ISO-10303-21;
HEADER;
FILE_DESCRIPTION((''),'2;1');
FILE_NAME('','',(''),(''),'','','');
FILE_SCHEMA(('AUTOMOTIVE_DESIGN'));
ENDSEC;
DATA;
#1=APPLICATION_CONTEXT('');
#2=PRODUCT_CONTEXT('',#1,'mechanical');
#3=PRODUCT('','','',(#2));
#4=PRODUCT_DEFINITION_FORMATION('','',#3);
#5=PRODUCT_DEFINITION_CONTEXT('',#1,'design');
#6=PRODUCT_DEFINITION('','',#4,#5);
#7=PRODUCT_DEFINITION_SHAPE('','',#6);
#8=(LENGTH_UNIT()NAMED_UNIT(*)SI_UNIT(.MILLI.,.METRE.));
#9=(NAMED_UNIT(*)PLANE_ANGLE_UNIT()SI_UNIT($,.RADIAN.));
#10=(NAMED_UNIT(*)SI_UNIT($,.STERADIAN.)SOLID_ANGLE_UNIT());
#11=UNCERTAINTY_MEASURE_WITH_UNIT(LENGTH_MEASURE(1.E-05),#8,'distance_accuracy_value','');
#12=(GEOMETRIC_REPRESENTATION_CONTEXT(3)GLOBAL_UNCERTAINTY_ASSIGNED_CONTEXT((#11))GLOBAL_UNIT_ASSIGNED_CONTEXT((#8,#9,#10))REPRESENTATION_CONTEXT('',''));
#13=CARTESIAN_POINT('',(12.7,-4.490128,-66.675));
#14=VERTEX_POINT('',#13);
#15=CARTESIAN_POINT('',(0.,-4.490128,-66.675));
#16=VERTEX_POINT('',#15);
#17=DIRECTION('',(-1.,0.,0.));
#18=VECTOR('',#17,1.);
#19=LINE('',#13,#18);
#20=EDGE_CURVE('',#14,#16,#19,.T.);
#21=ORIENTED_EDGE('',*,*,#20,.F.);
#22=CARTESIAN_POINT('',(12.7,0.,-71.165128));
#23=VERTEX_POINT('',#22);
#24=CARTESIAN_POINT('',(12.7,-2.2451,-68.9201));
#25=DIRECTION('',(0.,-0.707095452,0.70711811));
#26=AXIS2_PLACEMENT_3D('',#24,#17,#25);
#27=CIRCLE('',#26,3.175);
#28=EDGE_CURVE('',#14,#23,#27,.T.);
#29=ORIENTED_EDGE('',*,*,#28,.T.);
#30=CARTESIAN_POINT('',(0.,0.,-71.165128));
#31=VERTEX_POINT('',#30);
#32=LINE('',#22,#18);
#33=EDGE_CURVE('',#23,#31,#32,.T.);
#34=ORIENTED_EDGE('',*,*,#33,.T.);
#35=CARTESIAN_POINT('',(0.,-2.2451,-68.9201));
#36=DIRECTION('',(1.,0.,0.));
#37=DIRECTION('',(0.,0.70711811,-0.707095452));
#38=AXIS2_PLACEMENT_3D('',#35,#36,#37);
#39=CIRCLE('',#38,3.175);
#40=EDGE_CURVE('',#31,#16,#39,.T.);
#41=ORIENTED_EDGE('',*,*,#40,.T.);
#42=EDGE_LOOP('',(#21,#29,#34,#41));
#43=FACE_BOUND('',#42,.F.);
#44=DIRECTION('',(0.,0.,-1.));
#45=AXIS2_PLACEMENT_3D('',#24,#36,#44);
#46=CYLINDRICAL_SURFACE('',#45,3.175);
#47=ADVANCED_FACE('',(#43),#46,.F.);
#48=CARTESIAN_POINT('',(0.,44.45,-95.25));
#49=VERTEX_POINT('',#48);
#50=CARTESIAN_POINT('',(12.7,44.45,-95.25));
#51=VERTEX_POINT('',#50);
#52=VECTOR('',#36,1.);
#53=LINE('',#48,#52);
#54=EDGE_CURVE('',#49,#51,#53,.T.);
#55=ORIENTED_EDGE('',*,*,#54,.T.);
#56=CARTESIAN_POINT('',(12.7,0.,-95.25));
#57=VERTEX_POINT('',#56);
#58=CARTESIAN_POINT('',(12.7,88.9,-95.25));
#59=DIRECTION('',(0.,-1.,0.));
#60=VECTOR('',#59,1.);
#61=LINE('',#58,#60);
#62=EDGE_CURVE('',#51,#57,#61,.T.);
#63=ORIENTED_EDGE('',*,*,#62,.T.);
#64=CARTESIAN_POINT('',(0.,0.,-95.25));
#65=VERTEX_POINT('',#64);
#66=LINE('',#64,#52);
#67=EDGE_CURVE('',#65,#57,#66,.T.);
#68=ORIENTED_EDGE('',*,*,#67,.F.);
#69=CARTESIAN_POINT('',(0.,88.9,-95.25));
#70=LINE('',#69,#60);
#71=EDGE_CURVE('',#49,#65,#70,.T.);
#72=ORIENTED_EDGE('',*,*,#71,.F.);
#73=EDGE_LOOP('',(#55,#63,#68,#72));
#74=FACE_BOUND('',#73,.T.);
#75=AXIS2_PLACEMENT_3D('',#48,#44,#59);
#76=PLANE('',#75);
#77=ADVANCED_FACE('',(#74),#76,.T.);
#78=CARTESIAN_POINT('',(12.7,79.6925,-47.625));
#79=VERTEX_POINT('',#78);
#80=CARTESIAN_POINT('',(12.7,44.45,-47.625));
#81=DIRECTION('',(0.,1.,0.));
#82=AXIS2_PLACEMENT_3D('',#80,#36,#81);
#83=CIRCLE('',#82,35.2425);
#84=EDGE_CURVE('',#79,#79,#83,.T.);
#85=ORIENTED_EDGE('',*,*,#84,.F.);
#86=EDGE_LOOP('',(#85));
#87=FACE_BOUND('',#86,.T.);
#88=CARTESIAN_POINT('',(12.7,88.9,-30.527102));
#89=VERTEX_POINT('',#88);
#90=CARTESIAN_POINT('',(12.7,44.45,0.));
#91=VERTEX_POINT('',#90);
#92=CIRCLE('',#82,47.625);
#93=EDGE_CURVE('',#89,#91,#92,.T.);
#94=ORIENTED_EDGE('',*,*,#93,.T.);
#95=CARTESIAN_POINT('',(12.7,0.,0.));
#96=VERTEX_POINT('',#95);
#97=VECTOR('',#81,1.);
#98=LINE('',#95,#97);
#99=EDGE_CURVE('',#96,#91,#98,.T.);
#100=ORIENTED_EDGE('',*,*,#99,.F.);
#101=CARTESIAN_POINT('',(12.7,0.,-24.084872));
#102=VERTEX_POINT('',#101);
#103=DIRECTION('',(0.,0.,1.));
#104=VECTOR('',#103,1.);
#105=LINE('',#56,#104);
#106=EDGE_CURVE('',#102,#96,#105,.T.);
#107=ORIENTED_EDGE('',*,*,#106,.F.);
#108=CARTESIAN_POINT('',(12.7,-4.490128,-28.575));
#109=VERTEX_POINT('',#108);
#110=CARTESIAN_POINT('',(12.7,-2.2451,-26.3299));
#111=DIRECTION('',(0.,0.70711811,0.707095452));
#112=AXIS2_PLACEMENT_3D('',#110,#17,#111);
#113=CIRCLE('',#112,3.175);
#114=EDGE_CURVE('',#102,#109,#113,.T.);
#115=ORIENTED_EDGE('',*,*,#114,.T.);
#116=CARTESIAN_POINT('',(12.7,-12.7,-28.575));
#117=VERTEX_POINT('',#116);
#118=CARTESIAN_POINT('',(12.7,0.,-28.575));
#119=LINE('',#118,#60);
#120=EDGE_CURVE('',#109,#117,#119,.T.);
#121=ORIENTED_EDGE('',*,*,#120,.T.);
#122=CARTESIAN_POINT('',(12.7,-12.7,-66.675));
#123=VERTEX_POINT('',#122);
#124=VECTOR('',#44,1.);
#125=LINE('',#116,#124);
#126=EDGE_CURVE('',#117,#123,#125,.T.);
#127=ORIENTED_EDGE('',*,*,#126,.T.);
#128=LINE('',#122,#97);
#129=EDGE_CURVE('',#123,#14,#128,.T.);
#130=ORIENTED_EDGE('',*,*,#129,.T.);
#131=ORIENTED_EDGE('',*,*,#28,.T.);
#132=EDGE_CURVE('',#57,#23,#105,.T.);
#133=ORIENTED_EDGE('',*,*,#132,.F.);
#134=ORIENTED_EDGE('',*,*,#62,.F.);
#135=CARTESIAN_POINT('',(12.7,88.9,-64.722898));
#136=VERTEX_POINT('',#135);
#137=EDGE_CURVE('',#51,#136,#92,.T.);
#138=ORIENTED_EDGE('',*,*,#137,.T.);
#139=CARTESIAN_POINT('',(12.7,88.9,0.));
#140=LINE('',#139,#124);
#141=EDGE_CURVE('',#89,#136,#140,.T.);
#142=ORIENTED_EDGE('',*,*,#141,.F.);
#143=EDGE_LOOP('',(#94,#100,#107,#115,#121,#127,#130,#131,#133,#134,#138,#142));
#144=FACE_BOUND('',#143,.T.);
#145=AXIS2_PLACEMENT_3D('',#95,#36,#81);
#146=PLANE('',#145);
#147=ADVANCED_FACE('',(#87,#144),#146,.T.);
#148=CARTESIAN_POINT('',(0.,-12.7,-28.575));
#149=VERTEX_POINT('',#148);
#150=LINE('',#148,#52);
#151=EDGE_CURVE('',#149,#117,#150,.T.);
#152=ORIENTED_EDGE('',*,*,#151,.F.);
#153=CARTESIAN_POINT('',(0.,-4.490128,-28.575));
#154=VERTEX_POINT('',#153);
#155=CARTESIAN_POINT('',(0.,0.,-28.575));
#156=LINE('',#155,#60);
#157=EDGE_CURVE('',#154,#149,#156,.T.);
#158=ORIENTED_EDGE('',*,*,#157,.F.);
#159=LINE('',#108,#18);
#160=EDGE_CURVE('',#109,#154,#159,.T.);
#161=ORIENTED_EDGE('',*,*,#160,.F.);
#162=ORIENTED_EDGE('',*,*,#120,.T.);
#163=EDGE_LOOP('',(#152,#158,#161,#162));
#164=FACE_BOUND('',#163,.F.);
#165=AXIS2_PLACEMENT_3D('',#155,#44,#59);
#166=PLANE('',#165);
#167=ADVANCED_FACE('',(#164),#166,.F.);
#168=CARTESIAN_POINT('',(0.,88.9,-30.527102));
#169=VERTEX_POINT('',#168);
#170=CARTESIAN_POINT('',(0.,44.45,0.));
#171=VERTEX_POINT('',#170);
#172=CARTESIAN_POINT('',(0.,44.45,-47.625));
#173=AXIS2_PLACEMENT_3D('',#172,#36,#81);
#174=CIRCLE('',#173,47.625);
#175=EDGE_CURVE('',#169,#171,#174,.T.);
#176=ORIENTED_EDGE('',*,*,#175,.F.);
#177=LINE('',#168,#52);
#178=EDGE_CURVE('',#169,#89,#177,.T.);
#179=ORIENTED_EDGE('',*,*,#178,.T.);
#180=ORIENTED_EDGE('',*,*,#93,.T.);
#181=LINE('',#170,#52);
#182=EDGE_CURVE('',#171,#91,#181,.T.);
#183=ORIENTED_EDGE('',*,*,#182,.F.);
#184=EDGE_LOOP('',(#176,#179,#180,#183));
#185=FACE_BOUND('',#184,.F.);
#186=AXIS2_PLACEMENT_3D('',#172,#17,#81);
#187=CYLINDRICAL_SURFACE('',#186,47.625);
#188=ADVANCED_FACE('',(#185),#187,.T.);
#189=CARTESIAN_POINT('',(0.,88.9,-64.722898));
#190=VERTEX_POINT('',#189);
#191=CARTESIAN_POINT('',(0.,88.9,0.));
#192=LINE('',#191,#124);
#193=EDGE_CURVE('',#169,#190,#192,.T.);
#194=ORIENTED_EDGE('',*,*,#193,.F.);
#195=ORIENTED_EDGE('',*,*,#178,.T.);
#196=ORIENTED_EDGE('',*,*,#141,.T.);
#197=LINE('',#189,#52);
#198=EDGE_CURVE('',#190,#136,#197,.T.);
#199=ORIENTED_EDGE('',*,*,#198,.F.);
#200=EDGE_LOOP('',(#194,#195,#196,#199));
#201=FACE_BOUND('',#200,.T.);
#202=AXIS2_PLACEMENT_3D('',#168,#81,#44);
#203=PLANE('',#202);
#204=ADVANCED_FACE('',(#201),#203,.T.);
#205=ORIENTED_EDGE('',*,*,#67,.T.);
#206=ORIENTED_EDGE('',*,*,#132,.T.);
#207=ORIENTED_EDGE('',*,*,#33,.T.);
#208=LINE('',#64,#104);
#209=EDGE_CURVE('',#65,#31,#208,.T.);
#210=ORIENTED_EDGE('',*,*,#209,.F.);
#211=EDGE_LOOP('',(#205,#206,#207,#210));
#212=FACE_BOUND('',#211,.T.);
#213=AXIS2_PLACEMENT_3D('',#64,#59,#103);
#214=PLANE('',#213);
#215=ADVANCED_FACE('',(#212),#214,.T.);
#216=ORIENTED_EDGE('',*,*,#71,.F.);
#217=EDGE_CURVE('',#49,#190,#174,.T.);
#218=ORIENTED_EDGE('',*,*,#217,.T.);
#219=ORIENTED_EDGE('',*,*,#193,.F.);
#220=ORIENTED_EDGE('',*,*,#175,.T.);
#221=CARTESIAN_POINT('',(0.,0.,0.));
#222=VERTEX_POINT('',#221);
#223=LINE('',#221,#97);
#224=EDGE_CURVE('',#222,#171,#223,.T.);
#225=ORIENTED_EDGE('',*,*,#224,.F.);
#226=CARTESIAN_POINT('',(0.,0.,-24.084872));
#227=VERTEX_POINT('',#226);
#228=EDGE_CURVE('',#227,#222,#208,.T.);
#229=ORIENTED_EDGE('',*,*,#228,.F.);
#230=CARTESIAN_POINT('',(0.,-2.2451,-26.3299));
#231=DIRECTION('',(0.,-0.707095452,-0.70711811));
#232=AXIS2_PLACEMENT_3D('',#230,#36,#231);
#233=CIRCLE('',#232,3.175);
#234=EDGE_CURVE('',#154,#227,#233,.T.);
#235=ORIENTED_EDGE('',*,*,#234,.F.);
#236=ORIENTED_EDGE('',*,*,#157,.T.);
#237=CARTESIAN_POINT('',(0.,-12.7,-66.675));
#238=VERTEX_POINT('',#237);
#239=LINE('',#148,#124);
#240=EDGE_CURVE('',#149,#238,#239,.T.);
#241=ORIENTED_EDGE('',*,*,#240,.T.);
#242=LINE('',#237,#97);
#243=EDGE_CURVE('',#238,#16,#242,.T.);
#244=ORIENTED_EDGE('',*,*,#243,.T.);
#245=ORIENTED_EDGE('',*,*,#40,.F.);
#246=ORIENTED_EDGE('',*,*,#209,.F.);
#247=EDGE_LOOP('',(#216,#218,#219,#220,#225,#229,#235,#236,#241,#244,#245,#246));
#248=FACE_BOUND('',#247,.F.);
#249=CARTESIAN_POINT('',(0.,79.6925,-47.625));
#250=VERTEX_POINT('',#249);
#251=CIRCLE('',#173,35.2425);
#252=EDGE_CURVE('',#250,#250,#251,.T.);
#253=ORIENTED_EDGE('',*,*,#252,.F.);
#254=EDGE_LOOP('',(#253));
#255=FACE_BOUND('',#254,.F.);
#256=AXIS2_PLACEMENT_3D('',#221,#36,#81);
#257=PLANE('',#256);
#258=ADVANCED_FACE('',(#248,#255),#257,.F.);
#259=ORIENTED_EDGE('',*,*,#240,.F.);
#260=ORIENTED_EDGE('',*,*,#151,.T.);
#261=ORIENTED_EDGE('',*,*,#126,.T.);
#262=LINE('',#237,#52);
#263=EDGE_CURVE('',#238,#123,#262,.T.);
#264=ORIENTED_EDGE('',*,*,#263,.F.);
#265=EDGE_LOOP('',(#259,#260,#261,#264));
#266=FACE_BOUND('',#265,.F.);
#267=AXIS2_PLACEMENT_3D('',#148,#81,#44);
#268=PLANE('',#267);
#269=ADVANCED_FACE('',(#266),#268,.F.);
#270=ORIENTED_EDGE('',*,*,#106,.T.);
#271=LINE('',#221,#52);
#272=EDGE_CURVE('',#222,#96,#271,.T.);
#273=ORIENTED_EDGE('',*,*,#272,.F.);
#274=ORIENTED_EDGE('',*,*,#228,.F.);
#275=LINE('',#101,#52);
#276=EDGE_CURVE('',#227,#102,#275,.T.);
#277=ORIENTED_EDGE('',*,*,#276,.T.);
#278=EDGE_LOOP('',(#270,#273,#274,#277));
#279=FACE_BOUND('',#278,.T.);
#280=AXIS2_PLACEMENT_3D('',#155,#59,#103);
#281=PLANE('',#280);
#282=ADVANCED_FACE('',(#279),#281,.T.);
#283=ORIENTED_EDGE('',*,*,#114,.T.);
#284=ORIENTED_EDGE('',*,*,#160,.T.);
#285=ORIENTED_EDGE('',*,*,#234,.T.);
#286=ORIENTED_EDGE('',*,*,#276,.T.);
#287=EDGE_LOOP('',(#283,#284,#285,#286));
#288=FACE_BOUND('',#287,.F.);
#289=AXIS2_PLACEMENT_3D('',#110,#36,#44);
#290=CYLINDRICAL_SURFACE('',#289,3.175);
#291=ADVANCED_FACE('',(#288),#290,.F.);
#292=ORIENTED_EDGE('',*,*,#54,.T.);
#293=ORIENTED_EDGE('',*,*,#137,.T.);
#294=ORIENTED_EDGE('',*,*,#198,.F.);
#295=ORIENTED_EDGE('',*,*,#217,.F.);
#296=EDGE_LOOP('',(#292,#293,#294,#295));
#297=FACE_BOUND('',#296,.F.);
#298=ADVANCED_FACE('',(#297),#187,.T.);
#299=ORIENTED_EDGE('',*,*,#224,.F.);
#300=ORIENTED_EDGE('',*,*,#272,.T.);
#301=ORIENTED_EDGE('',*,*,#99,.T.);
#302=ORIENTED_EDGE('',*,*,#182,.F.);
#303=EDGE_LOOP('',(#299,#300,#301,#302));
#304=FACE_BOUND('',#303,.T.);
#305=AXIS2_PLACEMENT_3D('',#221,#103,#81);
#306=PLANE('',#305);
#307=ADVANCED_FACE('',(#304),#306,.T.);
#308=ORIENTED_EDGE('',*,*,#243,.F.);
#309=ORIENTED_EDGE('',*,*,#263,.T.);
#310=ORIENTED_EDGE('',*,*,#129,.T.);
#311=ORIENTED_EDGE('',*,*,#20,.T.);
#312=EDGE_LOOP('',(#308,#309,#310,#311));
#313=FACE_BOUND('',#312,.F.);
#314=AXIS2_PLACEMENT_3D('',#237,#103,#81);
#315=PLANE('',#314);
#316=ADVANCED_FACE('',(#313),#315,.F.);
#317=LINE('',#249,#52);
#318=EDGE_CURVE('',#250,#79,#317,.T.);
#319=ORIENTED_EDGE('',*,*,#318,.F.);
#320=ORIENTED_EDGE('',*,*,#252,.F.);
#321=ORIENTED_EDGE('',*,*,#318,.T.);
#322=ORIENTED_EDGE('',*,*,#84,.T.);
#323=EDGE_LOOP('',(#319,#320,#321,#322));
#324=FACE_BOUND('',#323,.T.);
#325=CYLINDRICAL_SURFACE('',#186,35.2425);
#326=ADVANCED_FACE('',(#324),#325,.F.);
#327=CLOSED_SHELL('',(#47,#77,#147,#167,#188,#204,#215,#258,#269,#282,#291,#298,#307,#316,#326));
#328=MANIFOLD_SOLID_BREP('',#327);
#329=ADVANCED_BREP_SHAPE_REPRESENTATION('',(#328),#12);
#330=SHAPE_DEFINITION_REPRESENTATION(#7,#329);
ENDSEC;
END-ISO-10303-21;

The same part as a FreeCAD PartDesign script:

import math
import FreeCAD as App
import Part
import Sketcher
Q = App.Units.Quantity

doc = App.newDocument("Part")
body = doc.addObject("PartDesign::Body", "Body")

sketch1 = body.newObject("Sketcher::SketchObject", "Sketch")
sketch1.AttachmentSupport = (doc.getObject("YZ_Plane"), [""])
sketch1.MapMode = "FlatFace"
sketch1.addGeometry([
    Part.LineSegment(App.Vector(44, 0, 0), App.Vector(0, 0, 0)),
    Part.LineSegment(App.Vector(0, 0, 0), App.Vector(0, -29, 0)),
    Part.LineSegment(App.Vector(0, -29, 0), App.Vector(-13, -29, 0)),
    Part.LineSegment(App.Vector(-13, -29, 0), App.Vector(-13, -67, 0)),
    Part.LineSegment(App.Vector(-13, -67, 0), App.Vector(0, -67, 0)),
    Part.LineSegment(App.Vector(0, -67, 0), App.Vector(0, -95, 0)),
    Part.LineSegment(App.Vector(0, -95, 0), App.Vector(44, -95, 0)),
    Part.ArcOfCircle(Part.Circle(App.Vector(44, -48, 0), App.Vector(0, 0, 1), 48), math.radians(-90), math.radians(-21)),
    Part.LineSegment(App.Vector(89, -65, 0), App.Vector(89, -31, 0)),
    Part.ArcOfCircle(Part.Circle(App.Vector(44, -48, 0), App.Vector(0, 0, 1), 48), math.radians(21), math.radians(90)),
    Part.Circle(App.Vector(44, -48, 0), App.Vector(0, 0, 1), 35),
], False)
sketch1.addConstraint([
    Sketcher.Constraint("Coincident", 0, 2, 1, 1),
    Sketcher.Constraint("Coincident", 1, 2, 2, 1),
    Sketcher.Constraint("Coincident", 2, 2, 3, 1),
    Sketcher.Constraint("Coincident", 3, 2, 4, 1),
    Sketcher.Constraint("Coincident", 4, 2, 5, 1),
    Sketcher.Constraint("Coincident", 5, 2, 6, 1),
    Sketcher.Constraint("Tangent", 6, 2, 7, 1),
    Sketcher.Constraint("Coincident", 7, 2, 8, 1),
    Sketcher.Constraint("Coincident", 8, 2, 9, 1),
    Sketcher.Constraint("Tangent", 9, 2, 0, 1),
    Sketcher.Constraint("Horizontal", 0),
    Sketcher.Constraint("Vertical", 1),
    Sketcher.Constraint("Horizontal", 2),
    Sketcher.Constraint("Vertical", 3),
    Sketcher.Constraint("Horizontal", 4),
    Sketcher.Constraint("Vertical", 5),
    Sketcher.Constraint("Horizontal", 6),
    Sketcher.Constraint("Vertical", 8),
    Sketcher.Constraint("Coincident", 0, 2, -1, 1),
    Sketcher.Constraint("Coincident", 9, 3, 7, 3),
    Sketcher.Constraint("Coincident", 10, 3, 7, 3),
    Sketcher.Constraint("Equal", 7, 9),
    Sketcher.Constraint("PointOnObject", 4, 2, -2),
    Sketcher.Constraint("Equal", 1, 5),
    Sketcher.Constraint("Diameter", 10, Q("2.775 in")),
    Sketcher.Constraint("DistanceX", 2, 2, 2, 1, Q("0.5 in")),
    Sketcher.Constraint("DistanceY", 3, 2, 3, 1, Q("1.5 in")),
    Sketcher.Constraint("Radius", 7, Q("1.875 in")),
    Sketcher.Constraint("DistanceX", -1, 1, 7, 2, Q("3.5 in")),
    Sketcher.Constraint("DistanceX", 0, 2, 0, 1, Q("1.75 in")),
])
pad1 = body.newObject("PartDesign::Pad", "Pad")
pad1.Profile = sketch1
pad1.Length = Q("0.5 in")

sketch2 = body.newObject("Sketcher::SketchObject", "Sketch001")
sketch2.AttachmentSupport = (doc.getObject("YZ_Plane"), [""])
sketch2.MapMode = "FlatFace"
sketch2.AttachmentOffset = App.Placement(App.Vector(0, 0, 0.5 * 25.4), App.Rotation())
sketch2.addGeometry([
    Part.Circle(App.Vector(-2.2, -26.3, 0), App.Vector(0, 0, 1), 3.2),
    Part.Circle(App.Vector(-2.2, -68.9, 0), App.Vector(0, 0, 1), 3.2),
], False)
sketch2.addConstraint([
    Sketcher.Constraint("Equal", 0, 1),
    Sketcher.Constraint("Vertical", 0, 3, 1, 3),
    Sketcher.Constraint("Diameter", 0, Q("0.25 in")),
    Sketcher.Constraint("DistanceX", 0, 3, -1, 1, Q("0.0884 in")),
    Sketcher.Constraint("DistanceY", 0, 3, -1, 1, Q("1.0366 in")),
    Sketcher.Constraint("DistanceY", 1, 3, -1, 1, Q("2.7134 in")),
])
pocket1 = body.newObject("PartDesign::Pocket", "Pocket")
pocket1.Profile = sketch2
pocket1.Length = Q("0.5 in")

doc.recompute()
